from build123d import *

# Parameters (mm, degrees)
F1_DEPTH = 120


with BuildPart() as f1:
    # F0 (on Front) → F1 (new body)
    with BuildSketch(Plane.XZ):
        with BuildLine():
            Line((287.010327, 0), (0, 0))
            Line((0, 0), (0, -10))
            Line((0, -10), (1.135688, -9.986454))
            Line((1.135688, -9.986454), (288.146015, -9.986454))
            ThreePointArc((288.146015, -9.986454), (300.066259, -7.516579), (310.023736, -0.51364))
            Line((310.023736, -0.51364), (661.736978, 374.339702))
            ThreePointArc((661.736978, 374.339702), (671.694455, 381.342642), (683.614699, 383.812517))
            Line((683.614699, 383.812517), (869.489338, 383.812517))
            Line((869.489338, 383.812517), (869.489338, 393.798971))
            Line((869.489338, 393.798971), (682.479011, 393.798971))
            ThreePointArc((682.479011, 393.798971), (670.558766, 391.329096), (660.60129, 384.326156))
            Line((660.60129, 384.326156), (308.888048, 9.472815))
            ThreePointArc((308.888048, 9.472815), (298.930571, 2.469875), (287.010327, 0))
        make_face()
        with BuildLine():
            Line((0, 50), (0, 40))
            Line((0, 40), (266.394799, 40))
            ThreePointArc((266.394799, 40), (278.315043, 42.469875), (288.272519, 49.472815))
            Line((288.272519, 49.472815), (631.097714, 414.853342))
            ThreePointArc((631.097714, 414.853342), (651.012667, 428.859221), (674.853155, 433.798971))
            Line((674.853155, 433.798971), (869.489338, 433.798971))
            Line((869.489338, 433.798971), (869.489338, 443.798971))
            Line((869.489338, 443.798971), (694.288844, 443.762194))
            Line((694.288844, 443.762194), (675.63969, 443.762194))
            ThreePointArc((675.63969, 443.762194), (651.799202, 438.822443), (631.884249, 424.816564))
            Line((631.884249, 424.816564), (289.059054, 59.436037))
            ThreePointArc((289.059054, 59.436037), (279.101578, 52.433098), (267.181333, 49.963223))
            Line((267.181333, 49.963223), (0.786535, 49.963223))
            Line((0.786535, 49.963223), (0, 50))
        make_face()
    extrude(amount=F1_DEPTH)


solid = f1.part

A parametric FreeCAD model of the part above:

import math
import FreeCAD as App
import Part
import Sketcher
Q = App.Units.Quantity

doc = App.newDocument("Part")
body = doc.addObject("PartDesign::Body", "Body")
body.AllowCompound = True

sketch1 = doc.addObject("Sketcher::SketchObject", "Sketch")
body.addObject(sketch1)
sketch1.AttachmentSupport = (doc.XZ_Plane, [""])
sketch1.MapMode = "FlatFace"
sketch1.addGeometry([
    Part.LineSegment(App.Vector(287.010327, 0, 0), App.Vector(0, 0, 0)),
    Part.LineSegment(App.Vector(0, 0, 0), App.Vector(0, -10, 0)),
    Part.LineSegment(App.Vector(0, -10, 0), App.Vector(1.135688, -9.986454, 0)),
    Part.LineSegment(App.Vector(1.135688, -9.986454, 0), App.Vector(288.146015, -9.986454, 0)),
    Part.ArcOfCircle(Part.Circle(App.Vector(288.146014, 20.01355, 0), App.Vector(0, 0, 1), 30.000004), math.radians(-89.999998), math.radians(-43.175834)),
    Part.LineSegment(App.Vector(310.023736, -0.51364, 0), App.Vector(661.736978, 374.339702, 0)),
    Part.ArcOfCircle(Part.Circle(App.Vector(683.614699, 353.812517, 0), App.Vector(0, 0, 1), 30), math.radians(90), math.radians(136.824172)),
    Part.LineSegment(App.Vector(683.614699, 383.812517, 0), App.Vector(869.489338, 383.812517, 0)),
    Part.LineSegment(App.Vector(869.489338, 383.812517, 0), App.Vector(869.489338, 393.798971, 0)),
    Part.LineSegment(App.Vector(869.489338, 393.798971, 0), App.Vector(682.479011, 393.798971, 0)),
    Part.ArcOfCircle(Part.Circle(App.Vector(682.479009, 363.798975, 0), App.Vector(0, 0, 1), 29.999996), math.radians(89.999996), math.radians(136.824176)),
    Part.LineSegment(App.Vector(660.60129, 384.326156, 0), App.Vector(308.888048, 9.472815, 0)),
    Part.ArcOfCircle(Part.Circle(App.Vector(287.010327, 30, 0), App.Vector(0, 0, 1), 30), math.radians(-90), math.radians(-43.175828)),
    Part.LineSegment(App.Vector(0, 50, 0), App.Vector(0, 40, 0)),
    Part.LineSegment(App.Vector(0, 40, 0), App.Vector(266.394799, 40, 0)),
    Part.ArcOfCircle(Part.Circle(App.Vector(266.3948, 69.999996, 0), App.Vector(0, 0, 1), 29.999996), math.radians(-90.000002), math.radians(-43.175824)),
    Part.LineSegment(App.Vector(288.272519, 49.472815, 0), App.Vector(631.097714, 414.853342, 0)),
    Part.ArcOfCircle(Part.Circle(App.Vector(674.853155, 373.798971, 0), App.Vector(0, 0, 1), 60), math.radians(90), math.radians(136.824171)),
    Part.LineSegment(App.Vector(674.853155, 433.798971, 0), App.Vector(869.489338, 433.798971, 0)),
    Part.LineSegment(App.Vector(869.489338, 433.798971, 0), App.Vector(869.489338, 443.798971, 0)),
    Part.LineSegment(App.Vector(869.489338, 443.798971, 0), App.Vector(694.288844, 443.762194, 0)),
    Part.LineSegment(App.Vector(694.288844, 443.762194, 0), App.Vector(675.63969, 443.762194, 0)),
    Part.ArcOfCircle(Part.Circle(App.Vector(675.639694, 383.762188, 0), App.Vector(0, 0, 1), 60.000006), math.radians(90.000003), math.radians(136.82417)),
    Part.LineSegment(App.Vector(631.884249, 424.816564, 0), App.Vector(289.059054, 59.436037, 0)),
    Part.ArcOfCircle(Part.Circle(App.Vector(267.181334, 79.963223, 0), App.Vector(0, 0, 1), 30), math.radians(-90.000002), math.radians(-43.17583)),
    Part.LineSegment(App.Vector(267.181333, 49.963223, 0), App.Vector(0.786535, 49.963223, 0)),
    Part.LineSegment(App.Vector(0.786535, 49.963223, 0), App.Vector(0, 50, 0)),
], False)
sketch1.addConstraint([
    Sketcher.Constraint("Coincident", 0, 2, 1, 1),
    Sketcher.Constraint("Coincident", 1, 2, 2, 1),
    Sketcher.Constraint("Coincident", 2, 2, 3, 1),
    Sketcher.Constraint("Tangent", 3, 2, 4, 1),
    Sketcher.Constraint("Tangent", 4, 2, 5, 1),
    Sketcher.Constraint("Tangent", 5, 2, 6, 2),
    Sketcher.Constraint("Tangent", 6, 1, 7, 1),
    Sketcher.Constraint("Coincident", 7, 2, 8, 1),
    Sketcher.Constraint("Coincident", 8, 2, 9, 1),
    Sketcher.Constraint("Tangent", 9, 2, 10, 1),
    Sketcher.Constraint("Tangent", 10, 2, 11, 1),
    Sketcher.Constraint("Tangent", 11, 2, 12, 2),
    Sketcher.Constraint("Tangent", 12, 1, 0, 1),
    Sketcher.Constraint("Coincident", 13, 2, 14, 1),
    Sketcher.Constraint("Tangent", 14, 2, 15, 1),
    Sketcher.Constraint("Tangent", 15, 2, 16, 1),
    Sketcher.Constraint("Tangent", 16, 2, 17, 2),
    Sketcher.Constraint("Tangent", 17, 1, 18, 1),
    Sketcher.Constraint("Coincident", 18, 2, 19, 1),
    Sketcher.Constraint("Coincident", 19, 2, 20, 1),
    Sketcher.Constraint("Coincident", 20, 2, 21, 1),
    Sketcher.Constraint("Tangent", 21, 2, 22, 1),
    Sketcher.Constraint("Tangent", 22, 2, 23, 1),
    Sketcher.Constraint("Tangent", 23, 2, 24, 2),
    Sketcher.Constraint("Tangent", 24, 1, 25, 1),
    Sketcher.Constraint("Coincident", 25, 2, 26, 1),
    Sketcher.Constraint("Coincident", 26, 2, 13, 1),
    Sketcher.Constraint("Horizontal", 0),
    Sketcher.Constraint("Vertical", 1),
    Sketcher.Constraint("Horizontal", 3),
    Sketcher.Constraint("Horizontal", 7),
    Sketcher.Constraint("Vertical", 8),
    Sketcher.Constraint("Horizontal", 9),
    Sketcher.Constraint("Vertical", 13),
    Sketcher.Constraint("Horizontal", 14),
    Sketcher.Constraint("Horizontal", 18),
    Sketcher.Constraint("Vertical", 19),
    Sketcher.Constraint("Horizontal", 21),
    Sketcher.Constraint("Horizontal", 25),
    Sketcher.Constraint("Coincident", 0, 2, -1, 1),
    Sketcher.Constraint("Equal", 6, 12),
    Sketcher.Constraint("Equal", 10, 15),
    Sketcher.Constraint("Equal", 12, 24),
    Sketcher.Constraint("PointOnObject", 13, 2, -2),
    Sketcher.Constraint("Parallel", 5, 11),
    Sketcher.Constraint("Parallel", 11, 16),
    Sketcher.Constraint("Parallel", 16, 23),
    Sketcher.Constraint("Vertical", 8, 2, 18, 2),
    Sketcher.Constraint("Equal", 0, 3),
    Sketcher.Constraint("Equal", 14, 25),
    Sketcher.Constraint("Equal", 1, 13),
    Sketcher.Constraint("Equal", 13, 19),
    Sketcher.Constraint("Equal", 5, 11),
    Sketcher.Constraint("Equal", 16, 23),
    Sketcher.Constraint("Radius", 6, Q("30 mm")),
    Sketcher.Constraint("Radius", 17, Q("60 mm")),
    Sketcher.Constraint("DistanceY", 1, 2, 1, 1, Q("10 mm")),
    Sketcher.Constraint("DistanceY", -1, 1, 13, 2, Q("40 mm")),
    Sketcher.Constraint("DistanceY", 17, 3, 9, 2, Q("20 mm")),
    Sketcher.Constraint("DistanceX", 14, 1, 14, 2, Q("266.394799 mm")),
    Sketcher.Constraint("Radius", 4, Q("30.000004 mm")),
    Sketcher.Constraint("Radius", 10, Q("29.999996 mm")),
    Sketcher.Constraint("Radius", 22, Q("60.000006 mm")),
    Sketcher.Constraint("DistanceX", 7, 1, 7, 2, Q("185.874639 mm")),
    Sketcher.Constraint("DistanceX", -1, 1, 6, 3, Q("683.614699 mm")),
    Sketcher.Constraint("DistanceY", -1, 1, 5, 2, Q("374.339702 mm")),
    Sketcher.Constraint("DistanceX", 24, 3, 4, 2, Q("42.842402 mm")),
    Sketcher.Constraint("Distance", 2, Q("1.135769 mm")),
    Sketcher.Constraint("Distance", 16, Q("501.030981 mm")),
    Sketcher.Constraint("DistanceX", 0, 2, 0, 1, Q("287.010327 mm")),
    Sketcher.Constraint("DistanceX", 21, 2, 21, 1, Q("18.649154 mm")),
    Sketcher.Constraint("DistanceY", 6, 3, 22, 3, Q("29.949671 mm")),
])
pad1 = doc.addObject("PartDesign::Pad", "Pad")
body.addObject(pad1)
pad1.Profile = sketch1
pad1.Length = 120

doc.recompute()
